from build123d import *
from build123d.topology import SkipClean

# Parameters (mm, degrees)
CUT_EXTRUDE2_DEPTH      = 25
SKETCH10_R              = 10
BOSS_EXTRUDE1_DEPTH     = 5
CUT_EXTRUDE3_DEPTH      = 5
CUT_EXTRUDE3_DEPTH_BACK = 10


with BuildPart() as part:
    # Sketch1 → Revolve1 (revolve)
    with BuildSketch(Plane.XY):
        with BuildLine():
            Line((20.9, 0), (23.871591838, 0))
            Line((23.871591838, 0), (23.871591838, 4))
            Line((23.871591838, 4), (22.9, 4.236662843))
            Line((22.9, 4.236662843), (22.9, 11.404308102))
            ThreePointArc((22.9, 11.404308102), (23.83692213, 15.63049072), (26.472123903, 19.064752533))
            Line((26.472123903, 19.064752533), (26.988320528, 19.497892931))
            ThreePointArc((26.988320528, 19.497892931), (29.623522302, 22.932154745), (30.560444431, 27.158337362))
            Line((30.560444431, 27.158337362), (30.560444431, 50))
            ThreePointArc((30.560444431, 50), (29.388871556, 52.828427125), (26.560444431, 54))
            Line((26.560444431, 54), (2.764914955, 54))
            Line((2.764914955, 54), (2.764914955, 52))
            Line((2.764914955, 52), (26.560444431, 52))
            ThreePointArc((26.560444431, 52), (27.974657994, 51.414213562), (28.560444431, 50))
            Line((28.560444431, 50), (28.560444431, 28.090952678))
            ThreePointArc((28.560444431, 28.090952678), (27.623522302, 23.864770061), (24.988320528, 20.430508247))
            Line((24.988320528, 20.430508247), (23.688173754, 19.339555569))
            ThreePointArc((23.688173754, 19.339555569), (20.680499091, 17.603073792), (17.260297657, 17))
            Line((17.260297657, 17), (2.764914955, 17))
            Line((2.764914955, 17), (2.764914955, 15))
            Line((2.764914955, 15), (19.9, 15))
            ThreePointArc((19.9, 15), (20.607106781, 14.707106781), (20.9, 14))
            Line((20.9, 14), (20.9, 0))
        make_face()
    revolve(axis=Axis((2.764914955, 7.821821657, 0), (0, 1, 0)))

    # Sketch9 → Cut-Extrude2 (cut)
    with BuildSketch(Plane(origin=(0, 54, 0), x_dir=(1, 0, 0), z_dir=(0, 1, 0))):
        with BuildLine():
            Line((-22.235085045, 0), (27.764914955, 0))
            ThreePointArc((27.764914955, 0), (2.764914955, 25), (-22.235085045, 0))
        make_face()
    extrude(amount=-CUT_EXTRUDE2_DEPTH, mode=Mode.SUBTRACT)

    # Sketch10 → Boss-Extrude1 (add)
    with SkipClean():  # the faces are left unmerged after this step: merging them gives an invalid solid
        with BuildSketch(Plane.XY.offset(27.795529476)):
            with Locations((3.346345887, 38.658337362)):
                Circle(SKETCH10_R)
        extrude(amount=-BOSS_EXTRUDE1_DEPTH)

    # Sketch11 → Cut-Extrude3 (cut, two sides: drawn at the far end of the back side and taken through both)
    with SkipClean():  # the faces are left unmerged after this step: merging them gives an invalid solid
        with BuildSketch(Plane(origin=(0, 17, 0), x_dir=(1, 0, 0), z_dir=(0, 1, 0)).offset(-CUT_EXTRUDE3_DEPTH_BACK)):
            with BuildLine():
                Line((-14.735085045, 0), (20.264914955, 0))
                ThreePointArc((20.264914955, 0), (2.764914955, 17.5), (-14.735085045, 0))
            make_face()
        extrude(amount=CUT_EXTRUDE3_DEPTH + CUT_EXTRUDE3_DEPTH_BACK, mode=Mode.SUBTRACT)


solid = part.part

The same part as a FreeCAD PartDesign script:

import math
import FreeCAD as App
import Part
import Sketcher
Q = App.Units.Quantity

doc = App.newDocument("Part")
body = doc.addObject("PartDesign::Body", "Body")

# Sketch on XY plane
sketch1 = body.newObject("Sketcher::SketchObject", "Sketch")
sketch1.AttachmentSupport = (doc.getObject("XY_Plane"), [""])
sketch1.MapMode = "FlatFace"
sketch1.addGeometry([
    Part.LineSegment(App.Vector(20.9, 0, 0), App.Vector(23.871592, 0, 0)),  # 0
    Part.LineSegment(App.Vector(23.871592, 0, 0), App.Vector(23.871592, 4, 0)),  # 1
    Part.LineSegment(App.Vector(23.871592, 4, 0), App.Vector(22.9, 4.236663, 0)),  # 2
    Part.LineSegment(App.Vector(22.9, 4.236663, 0), App.Vector(22.9, 11.404308, 0)),  # 3
    Part.ArcOfCircle(Part.Circle(App.Vector(32.9, 11.404308, 0), App.Vector(0, 0, 1), 10), math.radians(130), math.radians(180)),  # 4
    Part.LineSegment(App.Vector(26.472124, 19.064753, 0), App.Vector(26.988321, 19.497893, 0)),  # 5
    Part.ArcOfCircle(Part.Circle(App.Vector(20.560444, 27.158337, 0), App.Vector(0, 0, 1), 10), math.radians(-50), math.radians(0)),  # 6
    Part.LineSegment(App.Vector(30.560444, 27.158337, 0), App.Vector(30.560444, 50, 0)),  # 7
    Part.ArcOfCircle(Part.Circle(App.Vector(26.560444, 50, 0), App.Vector(0, 0, 1), 4), math.radians(0), math.radians(90)),  # 8
    Part.LineSegment(App.Vector(26.560444, 54, 0), App.Vector(2.764915, 54, 0)),  # 9
    Part.LineSegment(App.Vector(2.764915, 54, 0), App.Vector(2.764915, 52, 0)),  # 10
    Part.LineSegment(App.Vector(2.764915, 52, 0), App.Vector(26.560444, 52, 0)),  # 11
    Part.ArcOfCircle(Part.Circle(App.Vector(26.560444, 50, 0), App.Vector(0, 0, 1), 2), math.radians(0), math.radians(90)),  # 12
    Part.LineSegment(App.Vector(28.560444, 50, 0), App.Vector(28.560444, 28.090953, 0)),  # 13
    Part.ArcOfCircle(Part.Circle(App.Vector(18.560444, 28.090953, 0), App.Vector(0, 0, 1), 10), math.radians(-50), math.radians(0)),  # 14
    Part.LineSegment(App.Vector(24.988321, 20.430508, 0), App.Vector(23.688174, 19.339556, 0)),  # 15
    Part.ArcOfCircle(Part.Circle(App.Vector(17.260298, 27, 0), App.Vector(0, 0, 1), 10), math.radians(-90), math.radians(-50)),  # 16
    Part.LineSegment(App.Vector(17.260298, 17, 0), App.Vector(2.764915, 17, 0)),  # 17
    Part.LineSegment(App.Vector(2.764915, 17, 0), App.Vector(2.764915, 15, 0)),  # 18
    Part.LineSegment(App.Vector(2.764915, 15, 0), App.Vector(19.9, 15, 0)),  # 19
    Part.ArcOfCircle(Part.Circle(App.Vector(19.9, 14, 0), App.Vector(0, 0, 1), 1), math.radians(0), math.radians(90)),  # 20
    Part.LineSegment(App.Vector(20.9, 14, 0), App.Vector(20.9, 0, 0)),  # 21
], False)
sketch1.addGeometry(Part.LineSegment(App.Vector(2.764915, 0, 0), App.Vector(2.764915, 54, 0)), True)  # axis
sketch1.addConstraint([
    Sketcher.Constraint("Coincident", 0, 2, 1, 1),
    Sketcher.Constraint("Coincident", 1, 2, 2, 1),
    Sketcher.Constraint("Coincident", 2, 2, 3, 1),
    Sketcher.Constraint("Tangent", 3, 2, 4, 2),
    Sketcher.Constraint("Tangent", 4, 1, 5, 1),
    Sketcher.Constraint("Tangent", 5, 2, 6, 1),
    Sketcher.Constraint("Tangent", 6, 2, 7, 1),
    Sketcher.Constraint("Tangent", 7, 2, 8, 1),
    Sketcher.Constraint("Tangent", 8, 2, 9, 1),
    Sketcher.Constraint("Coincident", 9, 2, 10, 1),
    Sketcher.Constraint("Coincident", 10, 2, 11, 1),
    Sketcher.Constraint("Tangent", 11, 2, 12, 2),
    Sketcher.Constraint("Tangent", 12, 1, 13, 1),
    Sketcher.Constraint("Tangent", 13, 2, 14, 2),
    Sketcher.Constraint("Tangent", 14, 1, 15, 1),
    Sketcher.Constraint("Tangent", 15, 2, 16, 2),
    Sketcher.Constraint("Tangent", 16, 1, 17, 1),
    Sketcher.Constraint("Coincident", 17, 2, 18, 1),
    Sketcher.Constraint("Coincident", 18, 2, 19, 1),
    Sketcher.Constraint("Tangent", 19, 2, 20, 2),
    Sketcher.Constraint("Tangent", 20, 1, 21, 1),
    Sketcher.Constraint("Coincident", 21, 2, 0, 1),
    Sketcher.Constraint("Horizontal", 0),
    Sketcher.Constraint("Vertical", 1),
    Sketcher.Constraint("Vertical", 3),
    Sketcher.Constraint("Vertical", 7),
    Sketcher.Constraint("Horizontal", 9),
    Sketcher.Constraint("Vertical", 10),
    Sketcher.Constraint("Horizontal", 11),
    Sketcher.Constraint("Vertical", 13),
    Sketcher.Constraint("Horizontal", 17),
    Sketcher.Constraint("Vertical", 18),
    Sketcher.Constraint("Horizontal", 19),
    Sketcher.Constraint("Vertical", 21),
    Sketcher.Constraint("Vertical", 22),
    Sketcher.Constraint("Coincident", 12, 3, 8, 3),
    Sketcher.Constraint("Coincident", 22, 2, 9, 2),
    Sketcher.Constraint("Equal", 4, 6),
    Sketcher.Constraint("Equal", 6, 14),
    Sketcher.Constraint("Equal", 14, 16),
    Sketcher.Constraint("PointOnObject", 0, 2, -1),
    Sketcher.Constraint("PointOnObject", 22, 1, -1),
    Sketcher.Constraint("Parallel", 5, 15),
    Sketcher.Constraint("Vertical", 10, 2, 17, 2),
    Sketcher.Constraint("Equal", 10, 18),
    Sketcher.Constraint("Radius", 4, 10.0),
    Sketcher.Constraint("Radius", 8, 4.0),
    Sketcher.Constraint("Radius", 12, 2.0),
    Sketcher.Constraint("Radius", 20, 1.0),
    Sketcher.Constraint("DistanceY", 1, 1, 1, 2, 4.0),
    Sketcher.Constraint("DistanceY", 21, 2, 21, 1, 14.0),
    Sketcher.Constraint("DistanceY", 22, 1, 22, 2, 54.0),
    Sketcher.Constraint("Angle", 5, Q("40 deg")),
    Sketcher.Constraint("Distance", 2, 1.0),
    Sketcher.Constraint("DistanceX", 20, 3, 4, 3, 13.0),
    Sketcher.Constraint("DistanceX", -1, 1, 4, 3, 32.9),
    Sketcher.Constraint("DistanceX", 0, 1, 0, 2, 2.971592),
    Sketcher.Constraint("DistanceX", 9, 2, 9, 1, 23.795529),
    Sketcher.Constraint("DistanceY", 4, 1, 14, 3, 9.0262),
    Sketcher.Constraint("Distance", 15, 1.697221),
    Sketcher.Constraint("DistanceX", 19, 1, 19, 2, 17.135085),
])
revolution = body.newObject("PartDesign::Revolution", "Revolution")
revolution.Profile = sketch1
revolution.ReferenceAxis = (sketch1, ["Axis0"])
revolution.Angle = 360

# Sketch on XZ plane
sketch2 = body.newObject("Sketcher::SketchObject", "Sketch001")
sketch2.AttachmentSupport = (doc.getObject("XZ_Plane"), [""])
sketch2.MapMode = "FlatFace"
sketch2.AttachmentOffset = App.Placement(App.Vector(0, 0, -54), App.Rotation())
sketch2.addGeometry([
    Part.LineSegment(App.Vector(-22.235085, 0, 0), App.Vector(27.764915, 0, 0)),
    Part.ArcOfCircle(Part.Circle(App.Vector(2.764915, 0, 0), App.Vector(0, 0, 1), 25), math.radians(180), math.radians(360)),
], False)
sketch2.addConstraint([
    Sketcher.Constraint("Coincident", 0, 1, 1, 1),
    Sketcher.Constraint("Coincident", 1, 2, 0, 2),
    Sketcher.Constraint("Horizontal", 0),
    Sketcher.Constraint("PointOnObject", 1, 3, -1),
    Sketcher.Constraint("PointOnObject", 0, 1, -1),
    Sketcher.Constraint("Radius", 1, 25.0),
    Sketcher.Constraint("DistanceX", -1, 1, 1, 3, 2.764915),
])
pocket1 = body.newObject("PartDesign::Pocket", "Pocket")
pocket1.Profile = sketch2
pocket1.Length = 25
pocket1.Reversed = True

# Sketch on XY plane
sketch3 = body.newObject("Sketcher::SketchObject", "Sketch002")
sketch3.AttachmentSupport = (doc.getObject("XY_Plane"), [""])
sketch3.MapMode = "FlatFace"
sketch3.AttachmentOffset = App.Placement(App.Vector(0, 0, 27.795529), App.Rotation())
sketch3.addGeometry(Part.Circle(App.Vector(3.346346, 38.658337, 0), App.Vector(0, 0, 1), 10), False)
sketch3.addConstraint([
    Sketcher.Constraint("Diameter", 0, 20.0),
    Sketcher.Constraint("DistanceX", -1, 1, 0, 3, 3.346346),
    Sketcher.Constraint("DistanceY", -1, 1, 0, 3, 38.658337),
])
pad1 = body.newObject("PartDesign::Pad", "Pad")
pad1.Profile = sketch3
pad1.Length = 5
pad1.Reversed = True

# Sketch on XZ plane
sketch4 = body.newObject("Sketcher::SketchObject", "Sketch003")
sketch4.AttachmentSupport = (doc.getObject("XZ_Plane"), [""])
sketch4.MapMode = "FlatFace"
sketch4.AttachmentOffset = App.Placement(App.Vector(0, 0, -17), App.Rotation())
sketch4.addGeometry([
    Part.LineSegment(App.Vector(-14.735085, 0, 0), App.Vector(20.264915, 0, 0)),
    Part.ArcOfCircle(Part.Circle(App.Vector(2.764915, 0, 0), App.Vector(0, 0, 1), 17.5), math.radians(180), math.radians(360)),
], False)
sketch4.addConstraint([
    Sketcher.Constraint("Coincident", 0, 1, 1, 1),
    Sketcher.Constraint("Coincident", 1, 2, 0, 2),
    Sketcher.Constraint("Horizontal", 0),
    Sketcher.Constraint("PointOnObject", 1, 3, -1),
    Sketcher.Constraint("PointOnObject", 0, 1, -1),
    Sketcher.Constraint("Radius", 1, 17.5),
    Sketcher.Constraint("DistanceX", -1, 1, 1, 3, 2.764915),
])
pocket2 = body.newObject("PartDesign::Pocket", "Pocket001")
pocket2.Profile = sketch4
pocket2.Type = "ThroughAll"
pocket2.Midplane = True

doc.recompute()
